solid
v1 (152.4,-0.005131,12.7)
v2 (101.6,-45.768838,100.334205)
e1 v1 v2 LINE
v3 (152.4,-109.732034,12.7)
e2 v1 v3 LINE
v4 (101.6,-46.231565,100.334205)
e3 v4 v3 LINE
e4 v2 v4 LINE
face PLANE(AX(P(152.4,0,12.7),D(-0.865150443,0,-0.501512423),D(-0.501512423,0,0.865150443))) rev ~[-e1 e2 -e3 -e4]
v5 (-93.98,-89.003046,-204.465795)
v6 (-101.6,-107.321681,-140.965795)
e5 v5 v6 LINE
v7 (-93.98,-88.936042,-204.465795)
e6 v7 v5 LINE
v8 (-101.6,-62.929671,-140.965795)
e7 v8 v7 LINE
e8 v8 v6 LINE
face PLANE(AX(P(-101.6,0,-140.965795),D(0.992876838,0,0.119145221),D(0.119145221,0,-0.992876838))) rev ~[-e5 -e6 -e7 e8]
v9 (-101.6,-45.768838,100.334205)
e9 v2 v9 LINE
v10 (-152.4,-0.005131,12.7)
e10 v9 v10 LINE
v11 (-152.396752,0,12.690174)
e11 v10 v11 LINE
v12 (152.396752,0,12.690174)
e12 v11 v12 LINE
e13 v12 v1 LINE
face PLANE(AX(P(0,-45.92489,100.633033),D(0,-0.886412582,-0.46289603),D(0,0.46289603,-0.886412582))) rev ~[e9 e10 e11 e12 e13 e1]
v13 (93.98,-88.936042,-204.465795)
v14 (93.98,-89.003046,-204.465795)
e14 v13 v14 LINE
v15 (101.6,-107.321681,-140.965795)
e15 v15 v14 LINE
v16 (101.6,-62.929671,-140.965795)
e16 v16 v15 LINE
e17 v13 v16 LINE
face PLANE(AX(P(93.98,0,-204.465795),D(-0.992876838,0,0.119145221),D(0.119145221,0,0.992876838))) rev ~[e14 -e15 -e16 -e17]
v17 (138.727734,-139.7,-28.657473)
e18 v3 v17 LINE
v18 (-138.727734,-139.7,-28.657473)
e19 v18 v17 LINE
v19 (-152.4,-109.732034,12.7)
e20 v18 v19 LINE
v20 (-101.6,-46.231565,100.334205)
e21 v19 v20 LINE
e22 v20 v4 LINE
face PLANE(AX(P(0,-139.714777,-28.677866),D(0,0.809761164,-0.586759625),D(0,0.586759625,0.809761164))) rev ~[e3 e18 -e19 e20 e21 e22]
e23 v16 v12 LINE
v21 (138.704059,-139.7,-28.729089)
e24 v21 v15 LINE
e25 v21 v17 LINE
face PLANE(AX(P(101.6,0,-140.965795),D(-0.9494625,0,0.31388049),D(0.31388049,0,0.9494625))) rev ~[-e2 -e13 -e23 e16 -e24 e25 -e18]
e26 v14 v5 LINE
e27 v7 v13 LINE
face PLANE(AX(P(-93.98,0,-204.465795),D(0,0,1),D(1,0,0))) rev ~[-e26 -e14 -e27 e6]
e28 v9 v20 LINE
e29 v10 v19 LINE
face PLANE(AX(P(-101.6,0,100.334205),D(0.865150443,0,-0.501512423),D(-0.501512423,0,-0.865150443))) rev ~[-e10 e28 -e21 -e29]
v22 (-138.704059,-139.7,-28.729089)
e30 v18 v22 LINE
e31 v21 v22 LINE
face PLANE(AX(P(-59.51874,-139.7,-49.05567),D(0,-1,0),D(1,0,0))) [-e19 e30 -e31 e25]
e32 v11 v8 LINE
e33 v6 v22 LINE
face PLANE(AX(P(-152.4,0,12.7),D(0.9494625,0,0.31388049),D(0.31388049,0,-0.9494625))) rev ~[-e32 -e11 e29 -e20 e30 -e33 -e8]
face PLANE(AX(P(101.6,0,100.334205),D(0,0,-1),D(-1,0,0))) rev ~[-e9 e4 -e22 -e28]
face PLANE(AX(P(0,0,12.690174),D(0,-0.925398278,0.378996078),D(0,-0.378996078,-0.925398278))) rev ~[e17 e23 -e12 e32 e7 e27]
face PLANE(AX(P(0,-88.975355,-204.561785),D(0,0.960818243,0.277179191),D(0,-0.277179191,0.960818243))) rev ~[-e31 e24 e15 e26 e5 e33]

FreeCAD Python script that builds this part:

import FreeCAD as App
import Part
import Sketcher
Q = App.Units.Quantity

doc = App.newDocument("Part")
body = doc.addObject("PartDesign::Body", "Body")

# Sketch on XZ plane
sketch1 = body.newObject("Sketcher::SketchObject", "Sketch")
sketch1.AttachmentSupport = (doc.getObject("XZ_Plane"), [""])
sketch1.MapMode = "FlatFace"
sketch1.addGeometry(Part.LineSegment(App.Vector(-101.6, 100.334205, 0), App.Vector(-152.4, 12.7, 0)), False)
sketch1.addGeometry(Part.LineSegment(App.Vector(-152.4, 12.7, 0), App.Vector(-101.6, -140.965795, 0)), False)
sketch1.addGeometry(Part.LineSegment(App.Vector(-101.6, -140.965795, 0), App.Vector(-93.98, -204.465795, 0)), False)
sketch1.addGeometry(Part.LineSegment(App.Vector(-93.98, -204.465795, 0), App.Vector(93.98, -204.465795, 0)), False)
sketch1.addGeometry(Part.LineSegment(App.Vector(93.98, -204.465795, 0), App.Vector(101.6, -140.965795, 0)), False)
sketch1.addGeometry(Part.LineSegment(App.Vector(101.6, -140.965795, 0), App.Vector(152.4, 12.7, 0)), False)
sketch1.addGeometry(Part.LineSegment(App.Vector(152.4, 12.7, 0), App.Vector(101.6, 100.334205, 0)), False)
sketch1.addGeometry(Part.LineSegment(App.Vector(101.6, 100.334205, 0), App.Vector(-101.6, 100.334205, 0)), False)
sketch1.addConstraint(Sketcher.Constraint("Coincident", 0, 2, 1, 1))
sketch1.addConstraint(Sketcher.Constraint("Coincident", 1, 2, 2, 1))
sketch1.addConstraint(Sketcher.Constraint("Coincident", 2, 2, 3, 1))
sketch1.addConstraint(Sketcher.Constraint("Coincident", 3, 2, 4, 1))
sketch1.addConstraint(Sketcher.Constraint("Coincident", 4, 2, 5, 1))
sketch1.addConstraint(Sketcher.Constraint("Coincident", 5, 2, 6, 1))
sketch1.addConstraint(Sketcher.Constraint("Coincident", 6, 2, 7, 1))
sketch1.addConstraint(Sketcher.Constraint("Coincident", 7, 2, 0, 1))
sketch1.addConstraint(Sketcher.Constraint("Horizontal", 3))
sketch1.addConstraint(Sketcher.Constraint("Horizontal", 7))
sketch1.addConstraint(Sketcher.Constraint("Symmetric", 1, 2, 4, 2, -2))
sketch1.addConstraint(Sketcher.Constraint("Symmetric", 0, 2, 5, 2, -2))
sketch1.addConstraint(Sketcher.Constraint("Vertical", 4, 2, 6, 2))
sketch1.addConstraint(Sketcher.Constraint("Vertical", 1, 2, 7, 2))
sketch1.addConstraint(Sketcher.Constraint("Equal", 2, 4))
sketch1.addConstraint(Sketcher.Constraint("DistanceX", 7, 2, 7, 1, Q("8 in")))
sketch1.addConstraint(Sketcher.Constraint("DistanceX", 3, 1, 3, 2, Q("7.4 in")))
sketch1.addConstraint(Sketcher.Constraint("DistanceX", 0, 2, -1, 1, Q("6 in")))
sketch1.addConstraint(Sketcher.Constraint("DistanceY", 3, 2, 6, 2, Q("12 in")))
sketch1.addConstraint(Sketcher.Constraint("DistanceY", -1, 1, 0, 2, Q("0.5 in")))
sketch1.addConstraint(Sketcher.Constraint("DistanceY", 2, 2, 1, 2, Q("2.5 in")))
sketch1.addConstraint(Sketcher.Constraint("Distance", 1, Q("161.845039 mm")))
pad1 = body.newObject("PartDesign::Pad", "Pad")
pad1.Profile = sketch1
pad1.Length = Q("5.5 in")

# Sketch on YZ plane
sketch2 = body.newObject("Sketcher::SketchObject", "Sketch001")
sketch2.AttachmentSupport = (doc.getObject("YZ_Plane"), [""])
sketch2.MapMode = "FlatFace"
sketch2.addGeometry(Part.LineSegment(App.Vector(11.297926, 100.633033, 0), App.Vector(-45.92489, 100.633033, 0)), False)
sketch2.addGeometry(Part.LineSegment(App.Vector(-45.92489, 100.633033, 0), App.Vector(0, 12.690174, 0)), False)
sketch2.addGeometry(Part.LineSegment(App.Vector(0, 12.690174, 0), App.Vector(-88.975355, -204.561785, 0)), False)
sketch2.addGeometry(Part.LineSegment(App.Vector(-88.975355, -204.561785, 0), App.Vector(-139.714777, -28.677866, 0)), False)
sketch2.addGeometry(Part.LineSegment(App.Vector(-139.714777, -28.677866, 0), App.Vector(-46.015032, 100.633033, 0)), False)
sketch2.addGeometry(Part.LineSegment(App.Vector(-46.015032, 100.633033, 0), App.Vector(-152.156293, 100.633033, 0)), False)
sketch2.addGeometry(Part.LineSegment(App.Vector(-152.156293, 100.633033, 0), App.Vector(-152.156293, -218.677998, 0)), False)
sketch2.addGeometry(Part.LineSegment(App.Vector(-152.156293, -218.677998, 0), App.Vector(11.297926, -218.677998, 0)), False)
sketch2.addGeometry(Part.LineSegment(App.Vector(11.297926, -218.677998, 0), App.Vector(11.297926, 100.633033, 0)), False)
sketch2.addConstraint(Sketcher.Constraint("Coincident", 0, 2, 1, 1))
sketch2.addConstraint(Sketcher.Constraint("Coincident", 1, 2, 2, 1))
sketch2.addConstraint(Sketcher.Constraint("Coincident", 2, 2, 3, 1))
sketch2.addConstraint(Sketcher.Constraint("Coincident", 3, 2, 4, 1))
sketch2.addConstraint(Sketcher.Constraint("Coincident", 4, 2, 5, 1))
sketch2.addConstraint(Sketcher.Constraint("Coincident", 5, 2, 6, 1))
sketch2.addConstraint(Sketcher.Constraint("Coincident", 6, 2, 7, 1))
sketch2.addConstraint(Sketcher.Constraint("Coincident", 7, 2, 8, 1))
sketch2.addConstraint(Sketcher.Constraint("Coincident", 8, 2, 0, 1))
sketch2.addConstraint(Sketcher.Constraint("Horizontal", 0))
sketch2.addConstraint(Sketcher.Constraint("Horizontal", 5))
sketch2.addConstraint(Sketcher.Constraint("Vertical", 6))
sketch2.addConstraint(Sketcher.Constraint("Horizontal", 7))
sketch2.addConstraint(Sketcher.Constraint("Vertical", 8))
sketch2.addConstraint(Sketcher.Constraint("PointOnObject", 1, 2, -2))
sketch2.addConstraint(Sketcher.Constraint("Horizontal", 0, 2, 4, 2))
sketch2.addConstraint(Sketcher.Constraint("DistanceX", 2, 2, 0, 2, Q("1.6949002 in")))
sketch2.addConstraint(Sketcher.Constraint("Distance", 2, Q("234.765899 mm")))
sketch2.addConstraint(Sketcher.Constraint("DistanceX", 5, 2, 5, 1, Q("106.141261 mm")))
sketch2.addConstraint(Sketcher.Constraint("DistanceX", 7, 1, 7, 2, Q("163.454219 mm")))
sketch2.addConstraint(Sketcher.Constraint("DistanceY", 6, 2, 6, 1, Q("319.311031 mm")))
sketch2.addConstraint(Sketcher.Constraint("DistanceY", 6, 2, -1, 1, Q("218.677998 mm")))
sketch2.addConstraint(Sketcher.Constraint("DistanceY", 3, 2, 0, 2, Q("129.310899 mm")))
sketch2.addConstraint(Sketcher.Constraint("Distance", 3, Q("183.05639 mm")))
sketch2.addConstraint(Sketcher.Constraint("Distance", 4, Q("159.690171 mm")))
sketch2.addConstraint(Sketcher.Constraint("DistanceX", 0, 2, 0, 1, Q("57.222816 mm")))
sketch2.addConstraint(Sketcher.Constraint("DistanceX", 0, 2, -1, 1, Q("45.92489 mm")))
pocket1 = body.newObject("PartDesign::Pocket", "Pocket")
pocket1.Profile = sketch2
pocket1.Length = Q("20 in")
pocket1.Midplane = True

doc.recompute()
